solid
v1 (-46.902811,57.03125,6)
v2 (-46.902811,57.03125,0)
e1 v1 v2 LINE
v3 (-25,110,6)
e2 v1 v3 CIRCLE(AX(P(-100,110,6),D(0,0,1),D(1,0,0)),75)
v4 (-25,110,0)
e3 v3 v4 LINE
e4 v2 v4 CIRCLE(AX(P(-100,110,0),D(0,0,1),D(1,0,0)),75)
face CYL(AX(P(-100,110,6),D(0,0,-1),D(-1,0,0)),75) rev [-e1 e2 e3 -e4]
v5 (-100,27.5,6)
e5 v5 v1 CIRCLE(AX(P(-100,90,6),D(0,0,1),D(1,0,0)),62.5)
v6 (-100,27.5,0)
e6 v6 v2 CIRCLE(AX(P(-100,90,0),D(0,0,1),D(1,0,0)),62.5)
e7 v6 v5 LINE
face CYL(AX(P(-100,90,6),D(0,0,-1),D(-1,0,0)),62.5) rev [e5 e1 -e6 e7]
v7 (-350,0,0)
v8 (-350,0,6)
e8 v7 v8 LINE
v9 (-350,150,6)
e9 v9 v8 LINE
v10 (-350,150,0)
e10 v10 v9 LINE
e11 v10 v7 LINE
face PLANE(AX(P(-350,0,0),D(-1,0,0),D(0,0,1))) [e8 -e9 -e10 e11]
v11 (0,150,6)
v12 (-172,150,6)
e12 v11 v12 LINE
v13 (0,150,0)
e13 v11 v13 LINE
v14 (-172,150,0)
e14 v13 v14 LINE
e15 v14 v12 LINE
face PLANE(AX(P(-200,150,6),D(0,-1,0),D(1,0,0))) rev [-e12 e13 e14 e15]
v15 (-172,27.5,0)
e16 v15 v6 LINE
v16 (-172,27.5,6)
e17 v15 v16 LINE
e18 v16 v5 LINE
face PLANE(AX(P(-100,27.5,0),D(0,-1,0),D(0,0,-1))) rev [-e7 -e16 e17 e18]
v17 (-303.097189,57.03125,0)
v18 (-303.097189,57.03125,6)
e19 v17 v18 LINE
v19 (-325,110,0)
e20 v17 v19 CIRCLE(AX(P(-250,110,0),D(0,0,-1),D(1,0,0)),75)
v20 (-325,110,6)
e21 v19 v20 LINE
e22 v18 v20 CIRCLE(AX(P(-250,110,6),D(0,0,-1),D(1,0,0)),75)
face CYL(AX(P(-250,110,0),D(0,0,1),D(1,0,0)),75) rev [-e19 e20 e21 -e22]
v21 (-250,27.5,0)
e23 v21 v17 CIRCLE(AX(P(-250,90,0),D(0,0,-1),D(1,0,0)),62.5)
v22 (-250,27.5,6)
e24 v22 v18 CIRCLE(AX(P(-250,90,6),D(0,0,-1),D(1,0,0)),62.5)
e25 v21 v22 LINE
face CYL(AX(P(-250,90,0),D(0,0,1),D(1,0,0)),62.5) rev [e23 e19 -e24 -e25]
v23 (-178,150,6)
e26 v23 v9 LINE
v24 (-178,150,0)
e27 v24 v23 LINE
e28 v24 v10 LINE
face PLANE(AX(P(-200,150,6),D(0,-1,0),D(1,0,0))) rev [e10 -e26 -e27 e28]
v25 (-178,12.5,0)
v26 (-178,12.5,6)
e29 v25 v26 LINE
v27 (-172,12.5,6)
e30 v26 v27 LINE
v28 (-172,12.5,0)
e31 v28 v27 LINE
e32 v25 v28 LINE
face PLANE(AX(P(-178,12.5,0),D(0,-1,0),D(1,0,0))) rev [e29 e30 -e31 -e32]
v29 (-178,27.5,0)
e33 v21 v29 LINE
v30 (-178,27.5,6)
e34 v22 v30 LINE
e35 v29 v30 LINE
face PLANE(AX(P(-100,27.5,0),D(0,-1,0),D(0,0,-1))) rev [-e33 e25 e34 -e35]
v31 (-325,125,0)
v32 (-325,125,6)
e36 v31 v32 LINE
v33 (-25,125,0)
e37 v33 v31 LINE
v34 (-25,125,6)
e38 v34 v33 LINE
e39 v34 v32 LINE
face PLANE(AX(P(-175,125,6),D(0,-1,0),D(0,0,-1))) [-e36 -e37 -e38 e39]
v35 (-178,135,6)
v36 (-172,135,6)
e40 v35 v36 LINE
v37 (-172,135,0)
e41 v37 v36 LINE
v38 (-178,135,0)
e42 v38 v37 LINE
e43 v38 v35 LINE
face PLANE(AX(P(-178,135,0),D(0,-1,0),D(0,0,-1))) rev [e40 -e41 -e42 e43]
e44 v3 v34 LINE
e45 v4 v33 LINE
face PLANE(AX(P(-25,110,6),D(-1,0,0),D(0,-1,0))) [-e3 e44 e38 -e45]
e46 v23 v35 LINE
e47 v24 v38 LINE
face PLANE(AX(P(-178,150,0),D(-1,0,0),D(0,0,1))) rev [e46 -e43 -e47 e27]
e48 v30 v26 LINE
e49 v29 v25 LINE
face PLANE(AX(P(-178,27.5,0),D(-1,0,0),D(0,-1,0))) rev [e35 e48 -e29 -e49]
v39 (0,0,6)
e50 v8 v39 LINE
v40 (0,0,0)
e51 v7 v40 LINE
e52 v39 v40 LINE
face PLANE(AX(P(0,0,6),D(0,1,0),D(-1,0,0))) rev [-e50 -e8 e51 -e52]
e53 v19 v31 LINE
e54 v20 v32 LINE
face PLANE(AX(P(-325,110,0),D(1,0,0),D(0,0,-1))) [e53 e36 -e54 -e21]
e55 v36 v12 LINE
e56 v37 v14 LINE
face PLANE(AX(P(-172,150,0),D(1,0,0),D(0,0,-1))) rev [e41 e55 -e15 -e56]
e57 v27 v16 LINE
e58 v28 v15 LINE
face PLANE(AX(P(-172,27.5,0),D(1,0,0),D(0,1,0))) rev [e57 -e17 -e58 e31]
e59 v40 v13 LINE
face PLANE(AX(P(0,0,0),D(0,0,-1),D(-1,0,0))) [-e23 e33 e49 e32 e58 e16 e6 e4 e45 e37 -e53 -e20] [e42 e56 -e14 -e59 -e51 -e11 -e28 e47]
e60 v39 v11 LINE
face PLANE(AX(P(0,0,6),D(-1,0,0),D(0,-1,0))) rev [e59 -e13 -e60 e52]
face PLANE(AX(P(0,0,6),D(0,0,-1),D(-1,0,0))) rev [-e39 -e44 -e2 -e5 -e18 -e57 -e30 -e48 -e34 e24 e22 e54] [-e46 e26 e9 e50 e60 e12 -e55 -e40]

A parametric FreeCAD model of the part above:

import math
import FreeCAD as App
import Part
import Sketcher
from FreeCAD import Vector


def add_polygon(sketch, points):
    """Adds a closed chain of lines whose ends are joined by coincident constraints."""
    first, n = sketch.GeometryCount, len(points)
    for a, b in zip(points, points[1:] + points[:1]):
        sketch.addGeometry(Part.LineSegment(App.Vector(*a, 0), App.Vector(*b, 0)), False)
    for i in range(n):
        sketch.addConstraint(Sketcher.Constraint("Coincident", first + i, 2, first + (i + 1) % n, 1))

doc = App.newDocument("Part")
body = doc.addObject("PartDesign::Body", "Body")

# Sketch on XY plane
sketch1 = doc.addObject("Sketcher::SketchObject", "Sketch")
body.addObject(sketch1)
sketch1.AttachmentSupport = (doc.XY_Plane, [""])
sketch1.MapMode = "FlatFace"
add_polygon(sketch1, [(-200, 150), (-200, 0), (0, 0), (0, 150)])  # lines 0-3
sketch1.addGeometry(Part.ArcOfCircle(Part.Circle(Vector(-100, 110, 0), Vector(0, 0, 1), 75), math.radians(180), math.radians(224.930618)), False)  # 4
sketch1.addGeometry(Part.LineSegment(Vector(-175, 110, 0), Vector(-175, 125, 0)), False)  # 5
sketch1.addGeometry(Part.LineSegment(Vector(-175, 125, 0), Vector(-25, 125, 0)), False)  # 6
sketch1.addGeometry(Part.LineSegment(Vector(-25, 125, 0), Vector(-25, 110, 0)), False)  # 7
sketch1.addGeometry(Part.ArcOfCircle(Part.Circle(Vector(-100, 110, 0), Vector(0, 0, 1), 75), math.radians(-44.930618), math.radians(0)), False)  # 8
sketch1.addGeometry(Part.ArcOfCircle(Part.Circle(Vector(-100, 90, 0), Vector(0, 0, 1), 62.5), math.radians(-148.163305), math.radians(-31.836695)), False)  # 9
sketch1.addConstraint([
    Sketcher.Constraint("Tangent", 4, 1, 5, 1),
    Sketcher.Constraint("Coincident", 5, 2, 6, 1),
    Sketcher.Constraint("Coincident", 6, 2, 7, 1),
    Sketcher.Constraint("Tangent", 7, 2, 8, 2),
    Sketcher.Constraint("Coincident", 8, 1, 9, 2),
    Sketcher.Constraint("Coincident", 9, 1, 4, 2),
    Sketcher.Constraint("Vertical", 0),
    Sketcher.Constraint("Horizontal", 1),
    Sketcher.Constraint("Vertical", 2),
    Sketcher.Constraint("Horizontal", 3),
    Sketcher.Constraint("Vertical", 5),
    Sketcher.Constraint("Horizontal", 6),
    Sketcher.Constraint("Vertical", 7),
    Sketcher.Constraint("Coincident", 1, 2, -1, 1),
    Sketcher.Constraint("Coincident", 8, 3, 4, 3),
    Sketcher.Constraint("Equal", 4, 8),
    Sketcher.Constraint("Horizontal", 8, 1, 9, 1),
    Sketcher.Constraint("Equal", 6, 0),
    Sketcher.Constraint("Radius", 4, 75.0),
    Sketcher.Constraint("Radius", 9, 62.5),
    Sketcher.Constraint("DistanceX", 1, 1, 1, 2, 200.0),
    Sketcher.Constraint("DistanceY", 5, 1, 5, 2, 15.0),
    Sketcher.Constraint("DistanceX", 4, 3, -1, 1, 100.0),
    Sketcher.Constraint("DistanceY", -1, 1, 4, 3, 110.0),
    Sketcher.Constraint("DistanceY", -1, 1, 9, 3, 90.0),
])
pad1 = doc.addObject("PartDesign::Pad", "Pad")
body.addObject(pad1)
pad1.Profile = sketch1
pad1.Length = 6

# Sketch on XY plane
sketch2 = doc.addObject("Sketcher::SketchObject", "Sketch001")
body.addObject(sketch2)
sketch2.AttachmentSupport = (doc.XY_Plane, [""])
sketch2.MapMode = "FlatFace"
sketch2.AttachmentOffset = App.Placement(Vector(0, 0, 6), App.Rotation())
add_polygon(sketch2, [(-200, 125), (-200, 27.5), (-100, 27.5), (-100, 125)])  # lines 0-3
sketch2.addConstraint([
    Sketcher.Constraint("Vertical", 0),
    Sketcher.Constraint("Horizontal", 1),
    Sketcher.Constraint("Vertical", 2),
    Sketcher.Constraint("Horizontal", 3),
    Sketcher.Constraint("DistanceX", 1, 1, 1, 2, 100.0),
    Sketcher.Constraint("DistanceY", 0, 2, 0, 1, 97.5),
    Sketcher.Constraint("DistanceX", 0, 2, -1, 1, 200.0),
    Sketcher.Constraint("DistanceY", -1, 1, 2, 2, 125.0),
])
pocket1 = doc.addObject("PartDesign::Pocket", "Pocket")
body.addObject(pocket1)
pocket1.Profile = sketch2
pocket1.Length = 6

# Sketch on XY plane
sketch3 = doc.addObject("Sketcher::SketchObject", "Sketch002")
body.addObject(sketch3)
sketch3.AttachmentSupport = (doc.XY_Plane, [""])
sketch3.MapMode = "FlatFace"
sketch3.AttachmentOffset = App.Placement(Vector(0, 0, 6), App.Rotation())
sketch3.addGeometry([
    Part.LineSegment(Vector(-200, 27.5, 0), Vector(-250, 27.5, 0)),  # 0
    Part.ArcOfCircle(Part.Circle(Vector(-250, 90, 0), Vector(0, 0, 1), 62.5), math.radians(-148.163305), math.radians(-90)),  # 1
    Part.ArcOfCircle(Part.Circle(Vector(-250, 110, 0), Vector(0, 0, 1), 75), math.radians(180), math.radians(224.930618)),  # 2
    Part.LineSegment(Vector(-325, 110, 0), Vector(-325, 125, 0)),  # 3
    Part.LineSegment(Vector(-325, 125, 0), Vector(-200, 125, 0)),  # 4
    Part.LineSegment(Vector(-200, 125, 0), Vector(-200, 150, 0)),  # 5
    Part.LineSegment(Vector(-200, 150, 0), Vector(-350, 150, 0)),  # 6
    Part.LineSegment(Vector(-350, 150, 0), Vector(-350, 0, 0)),  # 7
    Part.LineSegment(Vector(-350, 0, 0), Vector(-200, 0, 0)),  # 8
    Part.LineSegment(Vector(-200, 0, 0), Vector(-200, 27.5, 0)),  # 9
], False)
sketch3.addConstraint([
    Sketcher.Constraint("Tangent", 0, 2, 1, 2),
    Sketcher.Constraint("Coincident", 1, 1, 2, 2),
    Sketcher.Constraint("Tangent", 2, 1, 3, 1),
    Sketcher.Constraint("Coincident", 3, 2, 4, 1),
    Sketcher.Constraint("Coincident", 4, 2, 5, 1),
    Sketcher.Constraint("Coincident", 5, 2, 6, 1),
    Sketcher.Constraint("Coincident", 6, 2, 7, 1),
    Sketcher.Constraint("Coincident", 7, 2, 8, 1),
    Sketcher.Constraint("Coincident", 8, 2, 9, 1),
    Sketcher.Constraint("Coincident", 9, 2, 0, 1),
    Sketcher.Constraint("Horizontal", 0),
    Sketcher.Constraint("Vertical", 3),
    Sketcher.Constraint("Horizontal", 4),
    Sketcher.Constraint("Vertical", 5),
    Sketcher.Constraint("Horizontal", 6),
    Sketcher.Constraint("Vertical", 7),
    Sketcher.Constraint("Horizontal", 8),
    Sketcher.Constraint("Vertical", 9),
    Sketcher.Constraint("PointOnObject", 7, 2, -1),
    Sketcher.Constraint("Vertical", 1, 3, 2, 3),
    Sketcher.Constraint("Vertical", 5, 2, 8, 2),
    Sketcher.Constraint("Equal", 8, 7),
    Sketcher.Constraint("Radius", 2, 75.0),
    Sketcher.Constraint("Radius", 1, 62.5),
    Sketcher.Constraint("DistanceX", 0, 2, 0, 1, 50.0),
    Sketcher.Constraint("DistanceX", 6, 2, 6, 1, 150.0),
    Sketcher.Constraint("DistanceY", 3, 1, 3, 2, 15.0),
    Sketcher.Constraint("DistanceY", 5, 1, 5, 2, 25.0),
    Sketcher.Constraint("DistanceY", 9, 1, 9, 2, 27.5),
    Sketcher.Constraint("DistanceX", 1, 3, -1, 1, 250.0),
])
pad2 = doc.addObject("PartDesign::Pad", "Pad001")
body.addObject(pad2)
pad2.Profile = sketch3
pad2.Length = 6
pad2.Reversed = True

# Sketch on XY plane
sketch4 = doc.addObject("Sketcher::SketchObject", "Sketch003")
body.addObject(sketch4)
sketch4.AttachmentSupport = (doc.XY_Plane, [""])
sketch4.MapMode = "FlatFace"
sketch4.AttachmentOffset = App.Placement(Vector(0, 0, 6), App.Rotation())
add_polygon(sketch4, [(-178, 150), (-178, 135), (-172, 135), (-172, 150)])  # lines 0-3
add_polygon(sketch4, [(-178, 27.5), (-178, 12.5), (-172, 12.5), (-172, 27.5)])  # lines 4-7
sketch4.addConstraint([
    Sketcher.Constraint("Vertical", 0),
    Sketcher.Constraint("Horizontal", 1),
    Sketcher.Constraint("Vertical", 2),
    Sketcher.Constraint("Horizontal", 3),
    Sketcher.Constraint("Vertical", 4),
    Sketcher.Constraint("Horizontal", 5),
    Sketcher.Constraint("Vertical", 6),
    Sketcher.Constraint("Horizontal", 7),
    Sketcher.Constraint("Vertical", 3, 2, 4, 2),
    Sketcher.Constraint("Vertical", 2, 2, 5, 2),
    Sketcher.Constraint("Equal", 2, 4),
    Sketcher.Constraint("DistanceX", 1, 1, 1, 2, 6.0),
    Sketcher.Constraint("DistanceY", 0, 2, 0, 1, 15.0),
    Sketcher.Constraint("DistanceX", 0, 2, -1, 1, 178.0),
    Sketcher.Constraint("DistanceY", -1, 1, 0, 2, 135.0),
    Sketcher.Constraint("DistanceY", -1, 1, 4, 2, 12.5),
])
pocket2 = doc.addObject("PartDesign::Pocket", "Pocket001")
body.addObject(pocket2)
pocket2.Profile = sketch4
pocket2.Length = 6

doc.recompute()
